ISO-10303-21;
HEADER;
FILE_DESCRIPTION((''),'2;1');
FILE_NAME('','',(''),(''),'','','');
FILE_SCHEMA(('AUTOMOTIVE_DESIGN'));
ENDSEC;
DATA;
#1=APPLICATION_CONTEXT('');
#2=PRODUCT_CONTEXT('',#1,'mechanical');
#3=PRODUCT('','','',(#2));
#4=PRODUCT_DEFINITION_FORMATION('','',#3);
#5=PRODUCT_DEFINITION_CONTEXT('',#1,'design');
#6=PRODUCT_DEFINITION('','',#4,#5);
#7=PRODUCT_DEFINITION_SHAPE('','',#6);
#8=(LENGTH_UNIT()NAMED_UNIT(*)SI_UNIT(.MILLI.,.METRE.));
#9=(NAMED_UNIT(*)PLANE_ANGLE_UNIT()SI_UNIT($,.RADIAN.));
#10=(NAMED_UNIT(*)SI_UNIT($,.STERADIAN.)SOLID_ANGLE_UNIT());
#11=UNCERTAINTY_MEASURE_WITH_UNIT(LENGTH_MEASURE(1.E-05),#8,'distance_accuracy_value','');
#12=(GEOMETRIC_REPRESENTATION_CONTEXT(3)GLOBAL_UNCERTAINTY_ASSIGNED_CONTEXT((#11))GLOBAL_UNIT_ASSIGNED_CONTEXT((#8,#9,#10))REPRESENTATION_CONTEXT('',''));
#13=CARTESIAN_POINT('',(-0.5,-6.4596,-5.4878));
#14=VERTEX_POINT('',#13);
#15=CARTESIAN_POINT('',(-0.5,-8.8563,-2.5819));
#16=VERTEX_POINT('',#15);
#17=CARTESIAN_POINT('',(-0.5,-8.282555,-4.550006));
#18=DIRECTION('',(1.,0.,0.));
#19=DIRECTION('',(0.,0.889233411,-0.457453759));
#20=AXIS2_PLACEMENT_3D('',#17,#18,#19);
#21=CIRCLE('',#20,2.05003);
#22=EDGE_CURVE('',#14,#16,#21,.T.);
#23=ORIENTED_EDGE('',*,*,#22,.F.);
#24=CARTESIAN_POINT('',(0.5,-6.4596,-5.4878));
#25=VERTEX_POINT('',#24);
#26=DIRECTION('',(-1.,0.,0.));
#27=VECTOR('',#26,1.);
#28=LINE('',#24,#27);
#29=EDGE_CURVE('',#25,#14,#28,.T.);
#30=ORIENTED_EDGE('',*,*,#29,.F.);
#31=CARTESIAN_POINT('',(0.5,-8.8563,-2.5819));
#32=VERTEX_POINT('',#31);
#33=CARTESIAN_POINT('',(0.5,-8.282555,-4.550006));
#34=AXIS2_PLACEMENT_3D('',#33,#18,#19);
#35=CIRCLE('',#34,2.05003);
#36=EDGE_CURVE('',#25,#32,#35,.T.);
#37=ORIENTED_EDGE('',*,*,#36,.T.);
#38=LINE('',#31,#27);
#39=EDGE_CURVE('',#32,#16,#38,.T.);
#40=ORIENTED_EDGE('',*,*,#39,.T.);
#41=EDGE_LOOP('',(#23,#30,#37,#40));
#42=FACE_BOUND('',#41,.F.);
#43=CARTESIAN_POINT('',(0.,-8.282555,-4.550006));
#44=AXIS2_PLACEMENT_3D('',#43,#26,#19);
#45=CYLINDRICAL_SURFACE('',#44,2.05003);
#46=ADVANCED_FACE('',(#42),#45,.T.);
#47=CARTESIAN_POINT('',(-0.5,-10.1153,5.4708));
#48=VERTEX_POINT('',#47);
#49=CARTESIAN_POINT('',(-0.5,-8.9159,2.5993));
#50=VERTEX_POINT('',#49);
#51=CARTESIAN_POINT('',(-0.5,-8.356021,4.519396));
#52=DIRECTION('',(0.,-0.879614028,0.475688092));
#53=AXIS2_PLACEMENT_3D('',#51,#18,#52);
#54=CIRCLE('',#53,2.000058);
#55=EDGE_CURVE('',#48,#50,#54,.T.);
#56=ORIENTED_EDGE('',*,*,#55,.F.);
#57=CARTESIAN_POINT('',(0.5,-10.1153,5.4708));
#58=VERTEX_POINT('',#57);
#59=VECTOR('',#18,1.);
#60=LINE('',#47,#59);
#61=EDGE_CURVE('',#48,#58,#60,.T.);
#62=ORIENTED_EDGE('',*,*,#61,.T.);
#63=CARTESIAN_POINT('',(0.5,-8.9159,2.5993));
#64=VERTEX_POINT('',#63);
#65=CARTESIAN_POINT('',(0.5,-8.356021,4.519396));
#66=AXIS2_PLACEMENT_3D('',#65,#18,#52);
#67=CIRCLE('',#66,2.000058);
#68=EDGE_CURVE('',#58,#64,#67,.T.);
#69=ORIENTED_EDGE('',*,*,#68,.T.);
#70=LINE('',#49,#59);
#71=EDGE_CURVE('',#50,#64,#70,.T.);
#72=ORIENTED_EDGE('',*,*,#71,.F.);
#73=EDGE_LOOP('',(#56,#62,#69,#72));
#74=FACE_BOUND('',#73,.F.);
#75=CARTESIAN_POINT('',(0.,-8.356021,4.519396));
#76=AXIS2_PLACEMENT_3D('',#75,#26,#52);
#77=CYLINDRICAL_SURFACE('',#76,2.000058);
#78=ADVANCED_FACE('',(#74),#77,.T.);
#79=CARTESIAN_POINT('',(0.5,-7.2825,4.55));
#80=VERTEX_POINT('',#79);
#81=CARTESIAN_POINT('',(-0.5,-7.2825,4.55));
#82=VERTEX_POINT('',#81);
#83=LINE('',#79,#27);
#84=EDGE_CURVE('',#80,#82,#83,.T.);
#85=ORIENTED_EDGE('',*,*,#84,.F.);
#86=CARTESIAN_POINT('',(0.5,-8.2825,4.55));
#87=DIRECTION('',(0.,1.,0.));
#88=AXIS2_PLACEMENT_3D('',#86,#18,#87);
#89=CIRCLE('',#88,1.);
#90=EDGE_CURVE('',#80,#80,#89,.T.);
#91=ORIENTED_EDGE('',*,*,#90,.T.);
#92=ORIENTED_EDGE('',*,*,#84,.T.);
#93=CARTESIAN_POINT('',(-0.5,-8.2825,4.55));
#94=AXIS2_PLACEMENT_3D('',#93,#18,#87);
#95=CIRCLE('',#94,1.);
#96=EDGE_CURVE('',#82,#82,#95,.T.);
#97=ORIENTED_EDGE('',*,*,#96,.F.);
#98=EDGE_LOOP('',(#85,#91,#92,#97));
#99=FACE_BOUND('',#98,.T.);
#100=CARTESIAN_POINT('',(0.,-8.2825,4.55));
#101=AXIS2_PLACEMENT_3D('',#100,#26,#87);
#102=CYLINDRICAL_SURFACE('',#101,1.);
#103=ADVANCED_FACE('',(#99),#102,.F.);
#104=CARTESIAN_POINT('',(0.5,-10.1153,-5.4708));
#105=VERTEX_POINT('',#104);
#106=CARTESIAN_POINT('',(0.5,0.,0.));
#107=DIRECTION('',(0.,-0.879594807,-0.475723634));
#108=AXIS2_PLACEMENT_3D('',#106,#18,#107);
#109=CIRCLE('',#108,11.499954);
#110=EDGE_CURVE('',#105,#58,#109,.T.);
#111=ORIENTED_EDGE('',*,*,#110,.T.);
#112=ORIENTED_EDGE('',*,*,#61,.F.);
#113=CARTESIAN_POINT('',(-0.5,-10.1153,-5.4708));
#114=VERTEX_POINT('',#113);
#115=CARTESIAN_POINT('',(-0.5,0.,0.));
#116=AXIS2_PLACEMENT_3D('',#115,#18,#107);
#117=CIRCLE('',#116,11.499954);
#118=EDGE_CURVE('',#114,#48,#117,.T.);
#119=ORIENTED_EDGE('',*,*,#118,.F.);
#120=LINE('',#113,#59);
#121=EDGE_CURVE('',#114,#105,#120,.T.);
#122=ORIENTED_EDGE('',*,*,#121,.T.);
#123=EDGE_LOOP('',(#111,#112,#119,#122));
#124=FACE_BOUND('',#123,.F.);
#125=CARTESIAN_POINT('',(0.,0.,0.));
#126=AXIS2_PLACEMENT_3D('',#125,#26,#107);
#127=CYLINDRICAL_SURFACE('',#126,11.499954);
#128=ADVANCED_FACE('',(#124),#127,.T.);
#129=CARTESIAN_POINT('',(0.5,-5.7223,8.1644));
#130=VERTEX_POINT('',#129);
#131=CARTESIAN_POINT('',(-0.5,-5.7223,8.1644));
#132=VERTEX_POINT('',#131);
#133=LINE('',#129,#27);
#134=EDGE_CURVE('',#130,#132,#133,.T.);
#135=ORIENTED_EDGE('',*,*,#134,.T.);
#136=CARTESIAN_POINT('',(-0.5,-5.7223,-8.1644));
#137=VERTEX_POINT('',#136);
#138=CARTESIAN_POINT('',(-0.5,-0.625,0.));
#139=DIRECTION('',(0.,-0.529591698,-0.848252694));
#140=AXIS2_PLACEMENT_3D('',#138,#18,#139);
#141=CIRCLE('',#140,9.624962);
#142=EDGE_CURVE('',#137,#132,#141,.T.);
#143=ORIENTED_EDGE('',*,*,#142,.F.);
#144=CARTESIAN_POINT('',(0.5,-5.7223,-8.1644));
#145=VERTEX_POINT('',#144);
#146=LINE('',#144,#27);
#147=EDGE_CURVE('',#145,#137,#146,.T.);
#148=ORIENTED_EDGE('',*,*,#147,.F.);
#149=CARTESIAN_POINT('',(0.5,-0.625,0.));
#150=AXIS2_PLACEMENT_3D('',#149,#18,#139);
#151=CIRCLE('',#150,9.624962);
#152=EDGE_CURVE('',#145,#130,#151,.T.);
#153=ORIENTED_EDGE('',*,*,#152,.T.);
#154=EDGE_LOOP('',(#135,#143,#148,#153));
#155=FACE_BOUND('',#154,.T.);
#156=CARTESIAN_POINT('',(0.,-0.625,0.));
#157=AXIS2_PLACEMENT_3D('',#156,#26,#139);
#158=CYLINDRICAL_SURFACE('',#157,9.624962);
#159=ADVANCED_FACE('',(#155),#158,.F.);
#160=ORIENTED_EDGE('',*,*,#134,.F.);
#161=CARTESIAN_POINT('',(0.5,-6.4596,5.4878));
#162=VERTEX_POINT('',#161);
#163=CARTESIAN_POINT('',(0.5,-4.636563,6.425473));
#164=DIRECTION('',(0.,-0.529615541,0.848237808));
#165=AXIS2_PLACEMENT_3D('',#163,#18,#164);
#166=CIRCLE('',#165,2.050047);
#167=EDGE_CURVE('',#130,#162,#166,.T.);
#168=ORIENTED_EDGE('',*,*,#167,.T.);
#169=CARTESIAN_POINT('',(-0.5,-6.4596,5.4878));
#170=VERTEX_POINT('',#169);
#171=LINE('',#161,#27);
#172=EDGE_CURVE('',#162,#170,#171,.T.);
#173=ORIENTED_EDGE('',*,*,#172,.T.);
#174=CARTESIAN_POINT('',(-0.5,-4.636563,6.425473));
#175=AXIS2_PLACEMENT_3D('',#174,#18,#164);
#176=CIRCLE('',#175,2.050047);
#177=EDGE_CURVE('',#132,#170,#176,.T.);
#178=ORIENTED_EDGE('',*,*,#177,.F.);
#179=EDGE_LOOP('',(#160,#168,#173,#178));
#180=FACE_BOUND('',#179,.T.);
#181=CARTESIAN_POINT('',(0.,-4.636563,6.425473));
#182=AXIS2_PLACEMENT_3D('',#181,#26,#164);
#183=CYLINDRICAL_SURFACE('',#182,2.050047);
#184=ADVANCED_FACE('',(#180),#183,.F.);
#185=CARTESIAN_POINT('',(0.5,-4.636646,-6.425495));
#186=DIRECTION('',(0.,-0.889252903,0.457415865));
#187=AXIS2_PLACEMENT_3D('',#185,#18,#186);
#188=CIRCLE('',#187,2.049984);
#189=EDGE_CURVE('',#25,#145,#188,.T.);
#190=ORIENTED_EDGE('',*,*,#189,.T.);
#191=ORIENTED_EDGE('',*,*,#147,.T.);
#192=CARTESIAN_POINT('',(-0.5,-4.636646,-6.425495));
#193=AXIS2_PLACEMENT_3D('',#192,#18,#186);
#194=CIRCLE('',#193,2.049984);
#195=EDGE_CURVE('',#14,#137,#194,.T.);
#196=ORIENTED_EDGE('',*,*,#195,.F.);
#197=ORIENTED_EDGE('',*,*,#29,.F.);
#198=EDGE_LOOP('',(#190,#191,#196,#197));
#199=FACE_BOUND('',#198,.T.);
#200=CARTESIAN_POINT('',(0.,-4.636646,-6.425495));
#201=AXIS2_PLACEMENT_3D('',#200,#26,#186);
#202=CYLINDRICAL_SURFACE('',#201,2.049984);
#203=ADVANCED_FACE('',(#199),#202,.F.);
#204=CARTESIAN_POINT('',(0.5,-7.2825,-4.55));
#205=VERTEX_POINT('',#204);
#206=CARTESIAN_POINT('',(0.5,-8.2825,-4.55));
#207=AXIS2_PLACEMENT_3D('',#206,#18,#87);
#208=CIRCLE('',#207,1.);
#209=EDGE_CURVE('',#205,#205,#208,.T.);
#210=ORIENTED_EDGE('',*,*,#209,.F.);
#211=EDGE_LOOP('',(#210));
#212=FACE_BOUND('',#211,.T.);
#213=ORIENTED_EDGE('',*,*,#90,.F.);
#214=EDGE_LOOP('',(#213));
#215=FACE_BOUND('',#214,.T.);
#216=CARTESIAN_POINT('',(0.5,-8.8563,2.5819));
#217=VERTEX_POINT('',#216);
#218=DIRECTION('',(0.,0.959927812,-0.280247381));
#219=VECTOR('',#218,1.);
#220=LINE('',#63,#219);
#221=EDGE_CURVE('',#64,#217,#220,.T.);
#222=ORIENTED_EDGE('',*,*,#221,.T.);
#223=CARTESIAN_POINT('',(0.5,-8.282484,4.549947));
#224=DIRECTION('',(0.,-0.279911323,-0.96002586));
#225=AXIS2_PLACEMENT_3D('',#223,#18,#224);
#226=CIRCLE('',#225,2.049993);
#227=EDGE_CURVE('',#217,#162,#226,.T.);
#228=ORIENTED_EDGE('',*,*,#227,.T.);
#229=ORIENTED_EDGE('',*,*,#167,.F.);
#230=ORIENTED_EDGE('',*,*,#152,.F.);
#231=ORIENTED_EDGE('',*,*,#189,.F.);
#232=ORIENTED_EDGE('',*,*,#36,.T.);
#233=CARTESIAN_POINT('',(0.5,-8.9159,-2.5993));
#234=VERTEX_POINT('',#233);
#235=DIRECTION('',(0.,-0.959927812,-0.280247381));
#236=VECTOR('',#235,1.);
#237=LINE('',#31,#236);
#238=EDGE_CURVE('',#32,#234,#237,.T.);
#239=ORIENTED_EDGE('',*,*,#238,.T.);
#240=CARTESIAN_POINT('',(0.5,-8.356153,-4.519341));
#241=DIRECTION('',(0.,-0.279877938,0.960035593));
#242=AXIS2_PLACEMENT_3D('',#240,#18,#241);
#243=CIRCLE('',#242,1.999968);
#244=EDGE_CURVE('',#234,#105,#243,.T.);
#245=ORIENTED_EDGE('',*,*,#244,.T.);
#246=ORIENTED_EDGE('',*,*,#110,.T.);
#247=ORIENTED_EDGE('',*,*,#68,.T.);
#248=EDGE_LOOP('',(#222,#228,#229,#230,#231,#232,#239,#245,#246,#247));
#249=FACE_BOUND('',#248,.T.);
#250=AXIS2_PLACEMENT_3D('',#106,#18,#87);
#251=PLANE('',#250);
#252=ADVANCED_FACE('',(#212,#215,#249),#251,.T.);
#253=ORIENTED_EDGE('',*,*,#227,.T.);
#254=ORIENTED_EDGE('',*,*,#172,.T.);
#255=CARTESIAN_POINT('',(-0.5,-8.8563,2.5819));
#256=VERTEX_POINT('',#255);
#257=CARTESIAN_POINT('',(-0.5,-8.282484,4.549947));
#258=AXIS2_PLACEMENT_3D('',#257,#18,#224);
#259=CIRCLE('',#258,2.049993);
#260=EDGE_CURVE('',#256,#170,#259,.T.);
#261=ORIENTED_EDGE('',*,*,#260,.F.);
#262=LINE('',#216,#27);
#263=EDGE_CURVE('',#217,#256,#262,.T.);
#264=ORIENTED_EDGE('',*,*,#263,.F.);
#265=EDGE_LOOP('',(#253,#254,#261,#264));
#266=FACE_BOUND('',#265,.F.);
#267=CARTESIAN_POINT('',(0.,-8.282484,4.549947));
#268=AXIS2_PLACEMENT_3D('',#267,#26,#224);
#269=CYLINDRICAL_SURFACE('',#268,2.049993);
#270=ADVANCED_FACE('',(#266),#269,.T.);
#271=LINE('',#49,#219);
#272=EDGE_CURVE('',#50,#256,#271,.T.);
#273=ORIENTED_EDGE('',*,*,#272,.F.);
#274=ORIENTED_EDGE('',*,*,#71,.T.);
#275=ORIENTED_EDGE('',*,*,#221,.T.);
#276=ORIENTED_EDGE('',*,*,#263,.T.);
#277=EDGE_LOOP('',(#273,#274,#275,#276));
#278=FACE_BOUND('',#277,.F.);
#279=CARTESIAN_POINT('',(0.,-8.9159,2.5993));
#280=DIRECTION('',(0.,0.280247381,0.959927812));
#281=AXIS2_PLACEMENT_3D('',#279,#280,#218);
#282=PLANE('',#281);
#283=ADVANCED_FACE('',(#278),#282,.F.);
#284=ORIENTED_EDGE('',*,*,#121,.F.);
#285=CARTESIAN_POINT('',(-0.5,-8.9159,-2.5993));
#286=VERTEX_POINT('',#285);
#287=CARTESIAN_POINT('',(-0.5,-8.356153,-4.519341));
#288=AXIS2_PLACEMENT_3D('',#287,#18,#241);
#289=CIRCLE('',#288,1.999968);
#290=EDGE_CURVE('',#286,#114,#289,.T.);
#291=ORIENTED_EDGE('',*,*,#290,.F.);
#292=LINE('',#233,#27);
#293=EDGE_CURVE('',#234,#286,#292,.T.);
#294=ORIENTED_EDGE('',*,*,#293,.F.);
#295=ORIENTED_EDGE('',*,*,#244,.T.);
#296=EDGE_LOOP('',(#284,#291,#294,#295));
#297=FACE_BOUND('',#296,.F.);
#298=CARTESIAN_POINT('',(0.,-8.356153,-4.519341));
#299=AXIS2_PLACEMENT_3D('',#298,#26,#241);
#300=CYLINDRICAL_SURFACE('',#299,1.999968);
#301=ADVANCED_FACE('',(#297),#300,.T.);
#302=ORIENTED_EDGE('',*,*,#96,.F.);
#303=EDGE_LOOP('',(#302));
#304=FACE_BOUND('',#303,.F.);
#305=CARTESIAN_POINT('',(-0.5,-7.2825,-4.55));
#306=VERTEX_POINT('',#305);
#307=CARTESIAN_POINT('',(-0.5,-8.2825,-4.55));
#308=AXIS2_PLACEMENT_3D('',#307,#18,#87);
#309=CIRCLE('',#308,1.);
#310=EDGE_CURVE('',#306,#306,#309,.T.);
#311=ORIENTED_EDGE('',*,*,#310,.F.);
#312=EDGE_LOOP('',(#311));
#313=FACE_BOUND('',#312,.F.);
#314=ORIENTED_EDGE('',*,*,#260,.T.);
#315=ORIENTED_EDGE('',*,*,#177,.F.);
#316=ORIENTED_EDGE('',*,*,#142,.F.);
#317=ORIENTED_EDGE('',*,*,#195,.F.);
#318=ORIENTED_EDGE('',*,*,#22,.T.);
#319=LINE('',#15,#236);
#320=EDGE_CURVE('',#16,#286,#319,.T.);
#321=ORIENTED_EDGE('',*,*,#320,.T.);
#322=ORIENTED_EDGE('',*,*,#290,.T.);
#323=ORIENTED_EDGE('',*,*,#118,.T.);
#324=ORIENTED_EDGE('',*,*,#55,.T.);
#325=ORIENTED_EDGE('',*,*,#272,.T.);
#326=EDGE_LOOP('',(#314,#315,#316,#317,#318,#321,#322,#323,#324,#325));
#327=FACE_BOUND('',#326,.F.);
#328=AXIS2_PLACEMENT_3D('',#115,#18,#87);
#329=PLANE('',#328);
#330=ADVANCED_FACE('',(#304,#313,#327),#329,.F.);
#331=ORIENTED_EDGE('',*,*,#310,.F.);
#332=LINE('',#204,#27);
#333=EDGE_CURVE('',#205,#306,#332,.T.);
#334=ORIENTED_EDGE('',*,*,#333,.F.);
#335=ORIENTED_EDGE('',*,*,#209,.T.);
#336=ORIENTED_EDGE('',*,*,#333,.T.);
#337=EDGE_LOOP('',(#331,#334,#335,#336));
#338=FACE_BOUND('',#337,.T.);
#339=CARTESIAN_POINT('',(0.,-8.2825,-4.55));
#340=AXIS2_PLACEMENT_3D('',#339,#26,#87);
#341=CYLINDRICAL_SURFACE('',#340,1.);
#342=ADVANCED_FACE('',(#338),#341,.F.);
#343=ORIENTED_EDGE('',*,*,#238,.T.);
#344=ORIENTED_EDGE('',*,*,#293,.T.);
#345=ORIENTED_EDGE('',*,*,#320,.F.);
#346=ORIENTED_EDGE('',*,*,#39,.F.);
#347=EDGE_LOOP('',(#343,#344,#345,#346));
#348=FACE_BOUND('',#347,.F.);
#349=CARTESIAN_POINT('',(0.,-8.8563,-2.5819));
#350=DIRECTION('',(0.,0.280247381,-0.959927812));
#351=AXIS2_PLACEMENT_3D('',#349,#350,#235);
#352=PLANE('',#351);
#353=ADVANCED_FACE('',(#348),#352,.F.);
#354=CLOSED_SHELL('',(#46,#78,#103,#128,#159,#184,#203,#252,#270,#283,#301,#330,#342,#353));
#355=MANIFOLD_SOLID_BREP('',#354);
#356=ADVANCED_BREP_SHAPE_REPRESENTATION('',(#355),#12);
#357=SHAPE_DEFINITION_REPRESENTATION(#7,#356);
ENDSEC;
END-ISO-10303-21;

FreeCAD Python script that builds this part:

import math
import FreeCAD as App
import Part
import Sketcher

V = App.Vector
Q = App.Units.Quantity

doc = App.newDocument("Part")
params = doc.addObject("Spreadsheet::Sheet", "Params")
for row, (alias, value) in enumerate([
    ("sketch1_diameter", "2 mm"),
    ("sketch1_radius", "2 mm"),
    ("sketch1_radius2", "11.5 mm"),
    ("sketch1_radius3", "2.05 mm"),
    ("sketch1_height", "1.92 mm"),
    ("pad1_length", "1 mm"),
], start=1):
    params.set(f"A{row}", alias)
    params.set(f"B{row}", "=" + value)
    params.setAlias(f"B{row}", alias)

body = doc.addObject("PartDesign::Body", "Body")

sketch1 = body.newObject("Sketcher::SketchObject", "Sketch")
sketch1.AttachmentSupport = (doc.getObject("YZ_Plane"), [""])
sketch1.MapMode = "FlatFace"
sketch1.addGeometry(Part.ArcOfCircle(Part.Circle(V(-8.36, -4.52, 0), V(0, 0, 1), 2), math.radians(106), math.radians(208)), False)
sketch1.addGeometry(Part.ArcOfCircle(Part.Circle(V(0, 0, 0), V(0, 0, 1), 11.5), math.radians(-152), math.radians(152)), False)
sketch1.addGeometry(Part.ArcOfCircle(Part.Circle(V(-8.36, 4.52, 0), V(0, 0, 1), 2), math.radians(152), math.radians(254)), False)
sketch1.addGeometry(Part.LineSegment(V(-8.92, 2.6, 0), V(-8.86, 2.58, 0)), False)
sketch1.addGeometry(Part.ArcOfCircle(Part.Circle(V(-8.28, 4.55, 0), V(0, 0, 1), 2.05), math.radians(-106), math.radians(27)), False)
sketch1.addGeometry(Part.ArcOfCircle(Part.Circle(V(-4.64, 6.43, 0), V(0, 0, 1), 2.05), math.radians(122), math.radians(207)), False)
sketch1.addGeometry(Part.ArcOfCircle(Part.Circle(V(-0.62, 0, 0), V(0, 0, 1), 9.62), math.radians(-122), math.radians(122)), False)
sketch1.addGeometry(Part.ArcOfCircle(Part.Circle(V(-4.64, -6.43, 0), V(0, 0, 1), 2.05), math.radians(153), math.radians(238)), False)
sketch1.addGeometry(Part.ArcOfCircle(Part.Circle(V(-8.28, -4.55, 0), V(0, 0, 1), 2.05), math.radians(-27), math.radians(106)), False)
sketch1.addGeometry(Part.LineSegment(V(-8.86, -2.58, 0), V(-8.92, -2.6, 0)), False)
sketch1.addGeometry(Part.Circle(V(-8.28, -4.55, 0), V(0, 0, 1), 1), False)
sketch1.addGeometry(Part.Circle(V(-8.28, 4.55, 0), V(0, 0, 1), 1), False)
sketch1.addConstraint(Sketcher.Constraint("Tangent", 0, 2, 1, 1))
sketch1.addConstraint(Sketcher.Constraint("Tangent", 1, 2, 2, 1))
sketch1.addConstraint(Sketcher.Constraint("Tangent", 2, 2, 3, 1))
sketch1.addConstraint(Sketcher.Constraint("Tangent", 3, 2, 4, 1))
sketch1.addConstraint(Sketcher.Constraint("Tangent", 4, 2, 5, 2))
sketch1.addConstraint(Sketcher.Constraint("Tangent", 5, 1, 6, 2))
sketch1.addConstraint(Sketcher.Constraint("Tangent", 6, 1, 7, 2))
sketch1.addConstraint(Sketcher.Constraint("Tangent", 7, 1, 8, 1))
sketch1.addConstraint(Sketcher.Constraint("Tangent", 8, 2, 9, 1))
sketch1.addConstraint(Sketcher.Constraint("Tangent", 9, 2, 0, 1))
sketch1.addConstraint(Sketcher.Constraint("Coincident", 1, 3, -1, 1))
sketch1.addConstraint(Sketcher.Constraint("Coincident", 10, 3, 8, 3))
sketch1.addConstraint(Sketcher.Constraint("Coincident", 11, 3, 4, 3))
sketch1.addConstraint(Sketcher.Constraint("Equal", 0, 2))
sketch1.addConstraint(Sketcher.Constraint("Equal", 4, 5))
sketch1.addConstraint(Sketcher.Constraint("Equal", 5, 7))
sketch1.addConstraint(Sketcher.Constraint("Equal", 7, 8))
sketch1.addConstraint(Sketcher.Constraint("Equal", 10, 11))
sketch1.addConstraint(Sketcher.Constraint("Symmetric", 5, 3, 7, 3, -1))
sketch1.addConstraint(Sketcher.Constraint("Symmetric", 3, 2, 8, 2, -1))
sketch1.addConstraint(Sketcher.Constraint("Diameter", 10, Q("2 mm")))
sketch1.addConstraint(Sketcher.Constraint("Radius", 0, Q("2 mm")))
sketch1.addConstraint(Sketcher.Constraint("Radius", 1, Q("11.5 mm")))
sketch1.addConstraint(Sketcher.Constraint("Radius", 4, Q("2.05 mm")))
sketch1.addConstraint(Sketcher.Constraint("Radius", 6, Q("9.625 mm")))
sketch1.addConstraint(Sketcher.Constraint("DistanceY", 8, 3, 4, 3, Q("9.1 mm")))
sketch1.addConstraint(Sketcher.Constraint("DistanceY", 2, 2, 2, 3, Q("1.92 mm")))
sketch1.addConstraint(Sketcher.Constraint("Distance", 3, Q("0.062 mm")))
sketch1.addConstraint(Sketcher.Constraint("DistanceX", 6, 3, -1, 1, Q("0.625 mm")))
sketch1.setExpression("Constraints[20]", "Params.sketch1_diameter")
sketch1.setExpression("Constraints[21]", "Params.sketch1_radius")
sketch1.setExpression("Constraints[22]", "Params.sketch1_radius2")
sketch1.setExpression("Constraints[23]", "Params.sketch1_radius3")
sketch1.setExpression("Constraints[26]", "Params.sketch1_height")
pad1 = body.newObject("PartDesign::Pad", "Pad")
pad1.Profile = sketch1
pad1.setExpression("Length", "Params.pad1_length")
pad1.Midplane = True

doc.recompute()
